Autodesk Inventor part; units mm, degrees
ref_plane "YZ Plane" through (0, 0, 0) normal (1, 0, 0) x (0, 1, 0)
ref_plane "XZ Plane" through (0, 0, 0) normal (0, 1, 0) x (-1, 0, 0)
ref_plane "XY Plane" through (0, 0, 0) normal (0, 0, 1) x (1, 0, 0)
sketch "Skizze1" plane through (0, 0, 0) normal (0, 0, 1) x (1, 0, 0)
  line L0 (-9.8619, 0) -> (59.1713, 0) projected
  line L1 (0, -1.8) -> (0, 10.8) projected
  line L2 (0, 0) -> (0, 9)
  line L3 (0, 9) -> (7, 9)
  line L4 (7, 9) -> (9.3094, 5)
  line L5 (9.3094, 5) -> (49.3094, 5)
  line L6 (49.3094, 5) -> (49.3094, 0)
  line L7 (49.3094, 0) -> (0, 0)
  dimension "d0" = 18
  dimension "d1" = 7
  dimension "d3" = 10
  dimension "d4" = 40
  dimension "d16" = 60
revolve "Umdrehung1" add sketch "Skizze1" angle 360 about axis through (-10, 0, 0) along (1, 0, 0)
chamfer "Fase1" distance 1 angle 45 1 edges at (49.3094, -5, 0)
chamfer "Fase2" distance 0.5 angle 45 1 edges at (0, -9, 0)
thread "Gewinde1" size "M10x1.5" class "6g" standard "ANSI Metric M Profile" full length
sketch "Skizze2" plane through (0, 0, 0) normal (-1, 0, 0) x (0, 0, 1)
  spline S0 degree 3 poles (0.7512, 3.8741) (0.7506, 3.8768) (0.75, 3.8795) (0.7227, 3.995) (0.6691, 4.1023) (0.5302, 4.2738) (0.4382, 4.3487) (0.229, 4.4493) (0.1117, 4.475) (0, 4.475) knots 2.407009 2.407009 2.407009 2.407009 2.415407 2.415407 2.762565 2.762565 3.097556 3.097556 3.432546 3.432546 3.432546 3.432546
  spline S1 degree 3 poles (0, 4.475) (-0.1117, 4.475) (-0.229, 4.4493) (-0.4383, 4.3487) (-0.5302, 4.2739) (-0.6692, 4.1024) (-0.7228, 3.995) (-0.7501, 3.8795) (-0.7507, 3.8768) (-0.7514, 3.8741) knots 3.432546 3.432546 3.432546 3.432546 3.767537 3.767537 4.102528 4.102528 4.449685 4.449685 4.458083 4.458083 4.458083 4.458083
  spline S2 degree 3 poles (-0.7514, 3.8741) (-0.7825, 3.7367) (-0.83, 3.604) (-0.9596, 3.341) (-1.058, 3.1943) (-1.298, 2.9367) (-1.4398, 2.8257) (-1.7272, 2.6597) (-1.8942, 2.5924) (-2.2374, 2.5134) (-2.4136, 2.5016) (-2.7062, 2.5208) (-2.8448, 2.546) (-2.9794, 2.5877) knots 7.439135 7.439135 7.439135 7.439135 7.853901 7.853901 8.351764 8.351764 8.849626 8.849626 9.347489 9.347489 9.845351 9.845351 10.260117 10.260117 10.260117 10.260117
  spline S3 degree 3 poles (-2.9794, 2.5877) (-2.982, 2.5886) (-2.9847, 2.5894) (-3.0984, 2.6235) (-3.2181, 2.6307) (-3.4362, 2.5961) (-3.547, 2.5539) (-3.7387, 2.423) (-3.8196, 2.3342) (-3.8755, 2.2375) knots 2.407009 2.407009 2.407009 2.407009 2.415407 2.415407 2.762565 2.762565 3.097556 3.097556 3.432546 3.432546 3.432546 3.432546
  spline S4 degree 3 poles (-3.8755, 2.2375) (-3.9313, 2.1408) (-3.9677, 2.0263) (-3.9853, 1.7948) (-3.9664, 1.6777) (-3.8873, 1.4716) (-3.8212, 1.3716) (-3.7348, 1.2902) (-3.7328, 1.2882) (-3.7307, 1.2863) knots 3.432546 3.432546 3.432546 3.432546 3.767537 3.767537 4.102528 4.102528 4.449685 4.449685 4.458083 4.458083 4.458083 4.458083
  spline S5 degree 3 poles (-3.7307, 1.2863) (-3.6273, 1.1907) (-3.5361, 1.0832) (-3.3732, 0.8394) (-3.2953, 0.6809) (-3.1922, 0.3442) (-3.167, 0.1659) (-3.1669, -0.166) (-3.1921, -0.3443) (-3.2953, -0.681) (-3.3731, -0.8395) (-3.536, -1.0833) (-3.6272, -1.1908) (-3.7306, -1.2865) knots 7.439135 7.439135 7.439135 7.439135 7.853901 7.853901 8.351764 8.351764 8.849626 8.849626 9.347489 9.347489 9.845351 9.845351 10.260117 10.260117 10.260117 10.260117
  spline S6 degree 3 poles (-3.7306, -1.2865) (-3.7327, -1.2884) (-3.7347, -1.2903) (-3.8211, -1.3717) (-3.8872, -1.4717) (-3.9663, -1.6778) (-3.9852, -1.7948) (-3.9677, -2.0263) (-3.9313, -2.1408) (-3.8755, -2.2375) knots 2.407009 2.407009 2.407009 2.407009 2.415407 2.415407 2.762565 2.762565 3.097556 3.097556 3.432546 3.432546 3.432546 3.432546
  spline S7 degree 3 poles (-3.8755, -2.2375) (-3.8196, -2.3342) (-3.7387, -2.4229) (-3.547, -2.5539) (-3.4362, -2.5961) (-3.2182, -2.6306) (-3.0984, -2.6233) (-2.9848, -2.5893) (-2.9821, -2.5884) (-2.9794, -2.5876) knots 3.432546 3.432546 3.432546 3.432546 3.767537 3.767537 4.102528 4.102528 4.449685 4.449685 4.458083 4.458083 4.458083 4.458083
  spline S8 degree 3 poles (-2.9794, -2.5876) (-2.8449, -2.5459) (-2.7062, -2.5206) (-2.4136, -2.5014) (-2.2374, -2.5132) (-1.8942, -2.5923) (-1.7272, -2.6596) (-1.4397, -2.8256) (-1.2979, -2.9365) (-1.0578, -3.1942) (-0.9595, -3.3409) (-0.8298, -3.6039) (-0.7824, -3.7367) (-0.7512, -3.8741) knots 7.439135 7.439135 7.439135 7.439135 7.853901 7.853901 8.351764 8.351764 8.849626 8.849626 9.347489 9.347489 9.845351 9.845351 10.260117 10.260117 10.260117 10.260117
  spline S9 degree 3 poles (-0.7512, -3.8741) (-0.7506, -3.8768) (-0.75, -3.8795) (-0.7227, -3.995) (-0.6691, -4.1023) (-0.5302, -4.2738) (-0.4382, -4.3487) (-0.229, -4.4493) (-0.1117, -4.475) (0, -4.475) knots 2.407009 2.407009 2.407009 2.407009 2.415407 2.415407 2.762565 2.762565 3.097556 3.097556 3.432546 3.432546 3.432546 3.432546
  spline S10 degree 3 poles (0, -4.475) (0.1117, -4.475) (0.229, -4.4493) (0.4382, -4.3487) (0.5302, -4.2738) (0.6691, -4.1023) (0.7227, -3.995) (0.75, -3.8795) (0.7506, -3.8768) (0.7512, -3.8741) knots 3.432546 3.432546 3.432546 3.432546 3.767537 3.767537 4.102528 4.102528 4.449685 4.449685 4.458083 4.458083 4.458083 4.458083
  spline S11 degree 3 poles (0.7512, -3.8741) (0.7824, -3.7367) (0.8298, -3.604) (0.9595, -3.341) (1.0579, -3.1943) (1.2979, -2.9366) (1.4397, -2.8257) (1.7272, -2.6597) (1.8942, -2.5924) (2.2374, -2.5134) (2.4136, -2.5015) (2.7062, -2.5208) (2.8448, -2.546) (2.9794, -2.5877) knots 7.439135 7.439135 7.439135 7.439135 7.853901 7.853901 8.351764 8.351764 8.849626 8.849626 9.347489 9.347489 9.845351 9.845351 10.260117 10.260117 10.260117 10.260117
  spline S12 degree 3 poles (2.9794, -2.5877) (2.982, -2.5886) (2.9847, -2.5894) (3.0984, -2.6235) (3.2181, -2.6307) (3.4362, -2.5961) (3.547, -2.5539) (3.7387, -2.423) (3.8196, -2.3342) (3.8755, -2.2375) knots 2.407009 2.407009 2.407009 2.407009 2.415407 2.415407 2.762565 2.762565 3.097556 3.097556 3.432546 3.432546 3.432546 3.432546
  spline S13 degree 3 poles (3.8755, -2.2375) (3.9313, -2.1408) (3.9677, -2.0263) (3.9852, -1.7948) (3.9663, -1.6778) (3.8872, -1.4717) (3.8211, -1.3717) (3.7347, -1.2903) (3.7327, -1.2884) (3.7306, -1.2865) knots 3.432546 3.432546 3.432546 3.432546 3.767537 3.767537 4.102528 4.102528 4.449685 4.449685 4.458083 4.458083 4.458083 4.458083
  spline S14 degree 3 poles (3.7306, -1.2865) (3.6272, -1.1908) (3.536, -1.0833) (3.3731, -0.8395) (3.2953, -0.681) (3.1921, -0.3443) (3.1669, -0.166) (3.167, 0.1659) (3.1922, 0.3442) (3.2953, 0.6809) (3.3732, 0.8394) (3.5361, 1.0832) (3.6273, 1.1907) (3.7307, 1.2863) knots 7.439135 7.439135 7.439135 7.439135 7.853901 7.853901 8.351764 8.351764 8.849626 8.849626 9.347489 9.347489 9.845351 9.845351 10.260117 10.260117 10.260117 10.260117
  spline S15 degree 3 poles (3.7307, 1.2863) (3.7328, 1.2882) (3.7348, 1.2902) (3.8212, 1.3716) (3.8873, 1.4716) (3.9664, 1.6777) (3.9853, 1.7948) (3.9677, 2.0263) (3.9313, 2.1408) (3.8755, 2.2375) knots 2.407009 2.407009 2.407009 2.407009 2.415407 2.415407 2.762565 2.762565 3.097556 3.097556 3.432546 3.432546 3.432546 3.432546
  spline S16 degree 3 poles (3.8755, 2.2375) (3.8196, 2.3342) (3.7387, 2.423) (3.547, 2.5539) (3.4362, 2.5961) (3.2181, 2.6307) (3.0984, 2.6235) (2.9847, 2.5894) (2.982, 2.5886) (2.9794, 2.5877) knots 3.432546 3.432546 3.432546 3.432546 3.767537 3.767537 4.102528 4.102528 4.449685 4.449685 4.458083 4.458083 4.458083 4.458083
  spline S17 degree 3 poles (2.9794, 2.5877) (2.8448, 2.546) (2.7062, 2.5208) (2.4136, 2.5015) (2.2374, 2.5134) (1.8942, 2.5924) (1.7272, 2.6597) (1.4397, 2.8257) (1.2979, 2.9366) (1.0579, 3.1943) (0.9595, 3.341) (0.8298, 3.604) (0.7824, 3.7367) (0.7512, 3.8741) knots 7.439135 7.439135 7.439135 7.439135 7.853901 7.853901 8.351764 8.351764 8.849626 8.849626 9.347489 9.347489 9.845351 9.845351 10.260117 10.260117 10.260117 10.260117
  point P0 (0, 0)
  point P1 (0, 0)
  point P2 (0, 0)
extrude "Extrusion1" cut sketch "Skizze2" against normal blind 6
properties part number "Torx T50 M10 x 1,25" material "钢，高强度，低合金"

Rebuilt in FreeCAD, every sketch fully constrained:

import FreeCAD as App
import Part
import Sketcher
from FreeCAD import Vector
Q = App.Units.Quantity


def edges_at(feature, points):
    """Names of the edges that pass closest to the given points."""
    edges = feature.Shape.Edges
    near = lambda p: min(range(len(edges)), key=lambda i: edges[i].distToShape(Part.Vertex(*p))[0])
    return sorted({f"Edge{near(p) + 1}" for p in points})

doc = App.newDocument("Part")
body = doc.addObject("PartDesign::Body", "Body")

# Sketch on XY plane
sketch1 = body.newObject("Sketcher::SketchObject", "Sketch")
sketch1.AttachmentSupport = (doc.getObject("XY_Plane"), [""])
sketch1.MapMode = "FlatFace"
sketch1.addGeometry([
    Part.LineSegment(Vector(0, 9, 0), Vector(0, 0, 0)),  # 0
    Part.LineSegment(Vector(0, 0, 0), Vector(49.3, 0, 0)),  # 1
    Part.LineSegment(Vector(49.3, 0, 0), Vector(49.3, 5, 0)),  # 2
    Part.LineSegment(Vector(49.3, 5, 0), Vector(9.3, 5, 0)),  # 3
    Part.LineSegment(Vector(9.3, 5, 0), Vector(7, 9, 0)),  # 4
    Part.LineSegment(Vector(7, 9, 0), Vector(0, 9, 0)),  # 5
], False)
sketch1.addConstraint([
    Sketcher.Constraint("Coincident", 0, 2, 1, 1),
    Sketcher.Constraint("Coincident", 1, 2, 2, 1),
    Sketcher.Constraint("Coincident", 2, 2, 3, 1),
    Sketcher.Constraint("Coincident", 3, 2, 4, 1),
    Sketcher.Constraint("Coincident", 4, 2, 5, 1),
    Sketcher.Constraint("Coincident", 5, 2, 0, 1),
    Sketcher.Constraint("Vertical", 0),
    Sketcher.Constraint("Horizontal", 1),
    Sketcher.Constraint("Vertical", 2),
    Sketcher.Constraint("Horizontal", 3),
    Sketcher.Constraint("Horizontal", 5),
    Sketcher.Constraint("Coincident", 0, 2, -1, 1),
    Sketcher.Constraint("DistanceX", 3, 2, 3, 1, 40.0),
    Sketcher.Constraint("DistanceX", 5, 2, 5, 1, 7.0),
    Sketcher.Constraint("DistanceY", 0, 2, 0, 1, 9.0),
    Sketcher.Constraint("DistanceY", 2, 1, 2, 2, 5.0),
    Sketcher.Constraint("Angle", 4, Q("120 deg")),
])
revolution = body.newObject("PartDesign::Revolution", "Revolution")
revolution.Profile = sketch1
revolution.ReferenceAxis = (sketch1, ["H_Axis"])
revolution.Angle = 360
doc.recompute()

chamfer = body.newObject("PartDesign::Chamfer", "Chamfer")
chamfer.Base = (revolution, edges_at(revolution, [(49.309, -5, 0)]))
chamfer.Size = 1
doc.recompute()

chamfer2 = body.newObject("PartDesign::Chamfer", "Chamfer001")
chamfer2.Base = (chamfer, edges_at(chamfer, [(0, -9, 0)]))
chamfer2.Size = 0.5

# Sketch on YZ plane
sketch2 = body.newObject("Sketcher::SketchObject", "Sketch001")
sketch2.AttachmentSupport = (doc.getObject("YZ_Plane"), [""])
sketch2.MapMode = "FlatFace"
sketch2.addGeometry([
    Part.BSplineCurve([Vector(2.5877, 2.9794, 0), Vector(2.546, 2.8448, 0), Vector(2.5208, 2.7062, 0), Vector(2.5015, 2.4136, 0), Vector(2.5134, 2.2374, 0), Vector(2.5924, 1.8942, 0), Vector(2.6597, 1.7272, 0), Vector(2.8257, 1.4397, 0), Vector(2.9366, 1.2979, 0), Vector(3.1943, 1.0579, 0), Vector(3.341, 0.9595, 0), Vector(3.604, 0.8298, 0), Vector(3.7367, 0.7824, 0), Vector(3.8741, 0.7512, 0)], [4, 2, 2, 2, 2, 2, 4], [7.439135, 7.853901, 8.351764, 8.849626, 9.347489, 9.845351, 10.260117], False, 3, [1, 1, 1, 1, 1, 1, 1, 1, 1, 1, 1, 1, 1, 1], False),  # 0
    Part.BSplineCurve([Vector(3.8741, 0.7512, 0), Vector(3.8768, 0.7506, 0), Vector(3.8795, 0.75, 0), Vector(3.995, 0.7227, 0), Vector(4.1023, 0.6691, 0), Vector(4.2738, 0.5302, 0), Vector(4.3487, 0.4382, 0), Vector(4.4493, 0.229, 0), Vector(4.475, 0.1117, 0), Vector(4.475, 0, 0)], [4, 2, 2, 2, 4], [2.407009, 2.415407, 2.762565, 3.097556, 3.432546], False, 3, [1, 1, 1, 1, 1, 1, 1, 1, 1, 1], False),  # 1
    Part.BSplineCurve([Vector(4.475, 0, 0), Vector(4.475, -0.1117, 0), Vector(4.4493, -0.229, 0), Vector(4.3487, -0.4383, 0), Vector(4.2739, -0.5302, 0), Vector(4.1024, -0.6692, 0), Vector(3.995, -0.7228, 0), Vector(3.8795, -0.7501, 0), Vector(3.8768, -0.7507, 0), Vector(3.8741, -0.7514, 0)], [4, 2, 2, 2, 4], [3.432546, 3.767537, 4.102528, 4.449685, 4.458083], False, 3, [1, 1, 1, 1, 1, 1, 1, 1, 1, 1], False),  # 2
    Part.BSplineCurve([Vector(3.8741, -0.7514, 0), Vector(3.7367, -0.7825, 0), Vector(3.604, -0.83, 0), Vector(3.341, -0.9596, 0), Vector(3.1943, -1.058, 0), Vector(2.9367, -1.298, 0), Vector(2.8257, -1.4398, 0), Vector(2.6597, -1.7272, 0), Vector(2.5924, -1.8942, 0), Vector(2.5134, -2.2374, 0), Vector(2.5016, -2.4136, 0), Vector(2.5208, -2.7062, 0), Vector(2.546, -2.8448, 0), Vector(2.5877, -2.9794, 0)], [4, 2, 2, 2, 2, 2, 4], [7.439135, 7.853901, 8.351764, 8.849626, 9.347489, 9.845351, 10.260117], False, 3, [1, 1, 1, 1, 1, 1, 1, 1, 1, 1, 1, 1, 1, 1], False),  # 3
    Part.BSplineCurve([Vector(2.5877, -2.9794, 0), Vector(2.5886, -2.982, 0), Vector(2.5894, -2.9847, 0), Vector(2.6235, -3.0984, 0), Vector(2.6307, -3.2181, 0), Vector(2.5961, -3.4362, 0), Vector(2.5539, -3.547, 0), Vector(2.423, -3.7387, 0), Vector(2.3342, -3.8196, 0), Vector(2.2375, -3.8755, 0)], [4, 2, 2, 2, 4], [2.407009, 2.415407, 2.762565, 3.097556, 3.432546], False, 3, [1, 1, 1, 1, 1, 1, 1, 1, 1, 1], False),  # 4
    Part.BSplineCurve([Vector(2.2375, -3.8755, 0), Vector(2.1408, -3.9313, 0), Vector(2.0263, -3.9677, 0), Vector(1.7948, -3.9853, 0), Vector(1.6777, -3.9664, 0), Vector(1.4716, -3.8873, 0), Vector(1.3716, -3.8212, 0), Vector(1.2902, -3.7348, 0), Vector(1.2882, -3.7328, 0), Vector(1.2863, -3.7307, 0)], [4, 2, 2, 2, 4], [3.432546, 3.767537, 4.102528, 4.449685, 4.458083], False, 3, [1, 1, 1, 1, 1, 1, 1, 1, 1, 1], False),  # 5
    Part.BSplineCurve([Vector(1.2863, -3.7307, 0), Vector(1.1907, -3.6273, 0), Vector(1.0832, -3.5361, 0), Vector(0.8394, -3.3732, 0), Vector(0.6809, -3.2953, 0), Vector(0.3442, -3.1922, 0), Vector(0.1659, -3.167, 0), Vector(-0.166, -3.1669, 0), Vector(-0.3443, -3.1921, 0), Vector(-0.681, -3.2953, 0), Vector(-0.8395, -3.3731, 0), Vector(-1.0833, -3.536, 0), Vector(-1.1908, -3.6272, 0), Vector(-1.2865, -3.7306, 0)], [4, 2, 2, 2, 2, 2, 4], [7.439135, 7.853901, 8.351764, 8.849626, 9.347489, 9.845351, 10.260117], False, 3, [1, 1, 1, 1, 1, 1, 1, 1, 1, 1, 1, 1, 1, 1], False),  # 6
    Part.BSplineCurve([Vector(-1.2865, -3.7306, 0), Vector(-1.2884, -3.7327, 0), Vector(-1.2903, -3.7347, 0), Vector(-1.3717, -3.8211, 0), Vector(-1.4717, -3.8872, 0), Vector(-1.6778, -3.9663, 0), Vector(-1.7948, -3.9852, 0), Vector(-2.0263, -3.9677, 0), Vector(-2.1408, -3.9313, 0), Vector(-2.2375, -3.8755, 0)], [4, 2, 2, 2, 4], [2.407009, 2.415407, 2.762565, 3.097556, 3.432546], False, 3, [1, 1, 1, 1, 1, 1, 1, 1, 1, 1], False),  # 7
    Part.BSplineCurve([Vector(-2.2375, -3.8755, 0), Vector(-2.3342, -3.8196, 0), Vector(-2.4229, -3.7387, 0), Vector(-2.5539, -3.547, 0), Vector(-2.5961, -3.4362, 0), Vector(-2.6306, -3.2182, 0), Vector(-2.6233, -3.0984, 0), Vector(-2.5893, -2.9848, 0), Vector(-2.5884, -2.9821, 0), Vector(-2.5876, -2.9794, 0)], [4, 2, 2, 2, 4], [3.432546, 3.767537, 4.102528, 4.449685, 4.458083], False, 3, [1, 1, 1, 1, 1, 1, 1, 1, 1, 1], False),  # 8
    Part.BSplineCurve([Vector(-2.5876, -2.9794, 0), Vector(-2.5459, -2.8449, 0), Vector(-2.5206, -2.7062, 0), Vector(-2.5014, -2.4136, 0), Vector(-2.5132, -2.2374, 0), Vector(-2.5923, -1.8942, 0), Vector(-2.6596, -1.7272, 0), Vector(-2.8256, -1.4397, 0), Vector(-2.9365, -1.2979, 0), Vector(-3.1942, -1.0578, 0), Vector(-3.3409, -0.9595, 0), Vector(-3.6039, -0.8298, 0), Vector(-3.7367, -0.7824, 0), Vector(-3.8741, -0.7512, 0)], [4, 2, 2, 2, 2, 2, 4], [7.439135, 7.853901, 8.351764, 8.849626, 9.347489, 9.845351, 10.260117], False, 3, [1, 1, 1, 1, 1, 1, 1, 1, 1, 1, 1, 1, 1, 1], False),  # 9
    Part.BSplineCurve([Vector(-3.8741, -0.7512, 0), Vector(-3.8768, -0.7506, 0), Vector(-3.8795, -0.75, 0), Vector(-3.995, -0.7227, 0), Vector(-4.1023, -0.6691, 0), Vector(-4.2738, -0.5302, 0), Vector(-4.3487, -0.4382, 0), Vector(-4.4493, -0.229, 0), Vector(-4.475, -0.1117, 0), Vector(-4.475, 0, 0)], [4, 2, 2, 2, 4], [2.407009, 2.415407, 2.762565, 3.097556, 3.432546], False, 3, [1, 1, 1, 1, 1, 1, 1, 1, 1, 1], False),  # 10
    Part.BSplineCurve([Vector(-4.475, 0, 0), Vector(-4.475, 0.1117, 0), Vector(-4.4493, 0.229, 0), Vector(-4.3487, 0.4382, 0), Vector(-4.2738, 0.5302, 0), Vector(-4.1023, 0.6691, 0), Vector(-3.995, 0.7227, 0), Vector(-3.8795, 0.75, 0), Vector(-3.8768, 0.7506, 0), Vector(-3.8741, 0.7512, 0)], [4, 2, 2, 2, 4], [3.432546, 3.767537, 4.102528, 4.449685, 4.458083], False, 3, [1, 1, 1, 1, 1, 1, 1, 1, 1, 1], False),  # 11
    Part.BSplineCurve([Vector(-3.8741, 0.7512, 0), Vector(-3.7367, 0.7824, 0), Vector(-3.604, 0.8298, 0), Vector(-3.341, 0.9595, 0), Vector(-3.1943, 1.0579, 0), Vector(-2.9366, 1.2979, 0), Vector(-2.8257, 1.4397, 0), Vector(-2.6597, 1.7272, 0), Vector(-2.5924, 1.8942, 0), Vector(-2.5134, 2.2374, 0), Vector(-2.5015, 2.4136, 0), Vector(-2.5208, 2.7062, 0), Vector(-2.546, 2.8448, 0), Vector(-2.5877, 2.9794, 0)], [4, 2, 2, 2, 2, 2, 4], [7.439135, 7.853901, 8.351764, 8.849626, 9.347489, 9.845351, 10.260117], False, 3, [1, 1, 1, 1, 1, 1, 1, 1, 1, 1, 1, 1, 1, 1], False),  # 12
    Part.BSplineCurve([Vector(-2.5877, 2.9794, 0), Vector(-2.5886, 2.982, 0), Vector(-2.5894, 2.9847, 0), Vector(-2.6235, 3.0984, 0), Vector(-2.6307, 3.2181, 0), Vector(-2.5961, 3.4362, 0), Vector(-2.5539, 3.547, 0), Vector(-2.423, 3.7387, 0), Vector(-2.3342, 3.8196, 0), Vector(-2.2375, 3.8755, 0)], [4, 2, 2, 2, 4], [2.407009, 2.415407, 2.762565, 3.097556, 3.432546], False, 3, [1, 1, 1, 1, 1, 1, 1, 1, 1, 1], False),  # 13
    Part.BSplineCurve([Vector(-2.2375, 3.8755, 0), Vector(-2.1408, 3.9313, 0), Vector(-2.0263, 3.9677, 0), Vector(-1.7948, 3.9852, 0), Vector(-1.6778, 3.9663, 0), Vector(-1.4717, 3.8872, 0), Vector(-1.3717, 3.8211, 0), Vector(-1.2903, 3.7347, 0), Vector(-1.2884, 3.7327, 0), Vector(-1.2865, 3.7306, 0)], [4, 2, 2, 2, 4], [3.432546, 3.767537, 4.102528, 4.449685, 4.458083], False, 3, [1, 1, 1, 1, 1, 1, 1, 1, 1, 1], False),  # 14
    Part.BSplineCurve([Vector(-1.2865, 3.7306, 0), Vector(-1.1908, 3.6272, 0), Vector(-1.0833, 3.536, 0), Vector(-0.8395, 3.3731, 0), Vector(-0.681, 3.2953, 0), Vector(-0.3443, 3.1921, 0), Vector(-0.166, 3.1669, 0), Vector(0.1659, 3.167, 0), Vector(0.3442, 3.1922, 0), Vector(0.6809, 3.2953, 0), Vector(0.8394, 3.3732, 0), Vector(1.0832, 3.5361, 0), Vector(1.1907, 3.6273, 0), Vector(1.2863, 3.7307, 0)], [4, 2, 2, 2, 2, 2, 4], [7.439135, 7.853901, 8.351764, 8.849626, 9.347489, 9.845351, 10.260117], False, 3, [1, 1, 1, 1, 1, 1, 1, 1, 1, 1, 1, 1, 1, 1], False),  # 15
    Part.BSplineCurve([Vector(1.2863, 3.7307, 0), Vector(1.2882, 3.7328, 0), Vector(1.2902, 3.7348, 0), Vector(1.3716, 3.8212, 0), Vector(1.4716, 3.8873, 0), Vector(1.6777, 3.9664, 0), Vector(1.7948, 3.9853, 0), Vector(2.0263, 3.9677, 0), Vector(2.1408, 3.9313, 0), Vector(2.2375, 3.8755, 0)], [4, 2, 2, 2, 4], [2.407009, 2.415407, 2.762565, 3.097556, 3.432546], False, 3, [1, 1, 1, 1, 1, 1, 1, 1, 1, 1], False),  # 16
    Part.BSplineCurve([Vector(2.2375, 3.8755, 0), Vector(2.3342, 3.8196, 0), Vector(2.423, 3.7387, 0), Vector(2.5539, 3.547, 0), Vector(2.5961, 3.4362, 0), Vector(2.6307, 3.2181, 0), Vector(2.6235, 3.0984, 0), Vector(2.5894, 2.9847, 0), Vector(2.5886, 2.982, 0), Vector(2.5877, 2.9794, 0)], [4, 2, 2, 2, 4], [3.432546, 3.767537, 4.102528, 4.449685, 4.458083], False, 3, [1, 1, 1, 1, 1, 1, 1, 1, 1, 1], False),  # 17
], False)
sketch2.addConstraint([
    Sketcher.Constraint("Block", 0),
    Sketcher.Constraint("Block", 1),
    Sketcher.Constraint("Block", 2),
    Sketcher.Constraint("Block", 3),
    Sketcher.Constraint("Block", 4),
    Sketcher.Constraint("Block", 5),
    Sketcher.Constraint("Block", 6),
    Sketcher.Constraint("Block", 7),
    Sketcher.Constraint("Block", 8),
    Sketcher.Constraint("Block", 9),
    Sketcher.Constraint("Block", 10),
    Sketcher.Constraint("Block", 11),
    Sketcher.Constraint("Block", 12),
    Sketcher.Constraint("Block", 13),
    Sketcher.Constraint("Block", 14),
    Sketcher.Constraint("Block", 15),
    Sketcher.Constraint("Block", 16),
    Sketcher.Constraint("Block", 17),
])
pocket1 = body.newObject("PartDesign::Pocket", "Pocket")
pocket1.Profile = sketch2
pocket1.Length = 6
pocket1.Reversed = True

doc.recompute()
